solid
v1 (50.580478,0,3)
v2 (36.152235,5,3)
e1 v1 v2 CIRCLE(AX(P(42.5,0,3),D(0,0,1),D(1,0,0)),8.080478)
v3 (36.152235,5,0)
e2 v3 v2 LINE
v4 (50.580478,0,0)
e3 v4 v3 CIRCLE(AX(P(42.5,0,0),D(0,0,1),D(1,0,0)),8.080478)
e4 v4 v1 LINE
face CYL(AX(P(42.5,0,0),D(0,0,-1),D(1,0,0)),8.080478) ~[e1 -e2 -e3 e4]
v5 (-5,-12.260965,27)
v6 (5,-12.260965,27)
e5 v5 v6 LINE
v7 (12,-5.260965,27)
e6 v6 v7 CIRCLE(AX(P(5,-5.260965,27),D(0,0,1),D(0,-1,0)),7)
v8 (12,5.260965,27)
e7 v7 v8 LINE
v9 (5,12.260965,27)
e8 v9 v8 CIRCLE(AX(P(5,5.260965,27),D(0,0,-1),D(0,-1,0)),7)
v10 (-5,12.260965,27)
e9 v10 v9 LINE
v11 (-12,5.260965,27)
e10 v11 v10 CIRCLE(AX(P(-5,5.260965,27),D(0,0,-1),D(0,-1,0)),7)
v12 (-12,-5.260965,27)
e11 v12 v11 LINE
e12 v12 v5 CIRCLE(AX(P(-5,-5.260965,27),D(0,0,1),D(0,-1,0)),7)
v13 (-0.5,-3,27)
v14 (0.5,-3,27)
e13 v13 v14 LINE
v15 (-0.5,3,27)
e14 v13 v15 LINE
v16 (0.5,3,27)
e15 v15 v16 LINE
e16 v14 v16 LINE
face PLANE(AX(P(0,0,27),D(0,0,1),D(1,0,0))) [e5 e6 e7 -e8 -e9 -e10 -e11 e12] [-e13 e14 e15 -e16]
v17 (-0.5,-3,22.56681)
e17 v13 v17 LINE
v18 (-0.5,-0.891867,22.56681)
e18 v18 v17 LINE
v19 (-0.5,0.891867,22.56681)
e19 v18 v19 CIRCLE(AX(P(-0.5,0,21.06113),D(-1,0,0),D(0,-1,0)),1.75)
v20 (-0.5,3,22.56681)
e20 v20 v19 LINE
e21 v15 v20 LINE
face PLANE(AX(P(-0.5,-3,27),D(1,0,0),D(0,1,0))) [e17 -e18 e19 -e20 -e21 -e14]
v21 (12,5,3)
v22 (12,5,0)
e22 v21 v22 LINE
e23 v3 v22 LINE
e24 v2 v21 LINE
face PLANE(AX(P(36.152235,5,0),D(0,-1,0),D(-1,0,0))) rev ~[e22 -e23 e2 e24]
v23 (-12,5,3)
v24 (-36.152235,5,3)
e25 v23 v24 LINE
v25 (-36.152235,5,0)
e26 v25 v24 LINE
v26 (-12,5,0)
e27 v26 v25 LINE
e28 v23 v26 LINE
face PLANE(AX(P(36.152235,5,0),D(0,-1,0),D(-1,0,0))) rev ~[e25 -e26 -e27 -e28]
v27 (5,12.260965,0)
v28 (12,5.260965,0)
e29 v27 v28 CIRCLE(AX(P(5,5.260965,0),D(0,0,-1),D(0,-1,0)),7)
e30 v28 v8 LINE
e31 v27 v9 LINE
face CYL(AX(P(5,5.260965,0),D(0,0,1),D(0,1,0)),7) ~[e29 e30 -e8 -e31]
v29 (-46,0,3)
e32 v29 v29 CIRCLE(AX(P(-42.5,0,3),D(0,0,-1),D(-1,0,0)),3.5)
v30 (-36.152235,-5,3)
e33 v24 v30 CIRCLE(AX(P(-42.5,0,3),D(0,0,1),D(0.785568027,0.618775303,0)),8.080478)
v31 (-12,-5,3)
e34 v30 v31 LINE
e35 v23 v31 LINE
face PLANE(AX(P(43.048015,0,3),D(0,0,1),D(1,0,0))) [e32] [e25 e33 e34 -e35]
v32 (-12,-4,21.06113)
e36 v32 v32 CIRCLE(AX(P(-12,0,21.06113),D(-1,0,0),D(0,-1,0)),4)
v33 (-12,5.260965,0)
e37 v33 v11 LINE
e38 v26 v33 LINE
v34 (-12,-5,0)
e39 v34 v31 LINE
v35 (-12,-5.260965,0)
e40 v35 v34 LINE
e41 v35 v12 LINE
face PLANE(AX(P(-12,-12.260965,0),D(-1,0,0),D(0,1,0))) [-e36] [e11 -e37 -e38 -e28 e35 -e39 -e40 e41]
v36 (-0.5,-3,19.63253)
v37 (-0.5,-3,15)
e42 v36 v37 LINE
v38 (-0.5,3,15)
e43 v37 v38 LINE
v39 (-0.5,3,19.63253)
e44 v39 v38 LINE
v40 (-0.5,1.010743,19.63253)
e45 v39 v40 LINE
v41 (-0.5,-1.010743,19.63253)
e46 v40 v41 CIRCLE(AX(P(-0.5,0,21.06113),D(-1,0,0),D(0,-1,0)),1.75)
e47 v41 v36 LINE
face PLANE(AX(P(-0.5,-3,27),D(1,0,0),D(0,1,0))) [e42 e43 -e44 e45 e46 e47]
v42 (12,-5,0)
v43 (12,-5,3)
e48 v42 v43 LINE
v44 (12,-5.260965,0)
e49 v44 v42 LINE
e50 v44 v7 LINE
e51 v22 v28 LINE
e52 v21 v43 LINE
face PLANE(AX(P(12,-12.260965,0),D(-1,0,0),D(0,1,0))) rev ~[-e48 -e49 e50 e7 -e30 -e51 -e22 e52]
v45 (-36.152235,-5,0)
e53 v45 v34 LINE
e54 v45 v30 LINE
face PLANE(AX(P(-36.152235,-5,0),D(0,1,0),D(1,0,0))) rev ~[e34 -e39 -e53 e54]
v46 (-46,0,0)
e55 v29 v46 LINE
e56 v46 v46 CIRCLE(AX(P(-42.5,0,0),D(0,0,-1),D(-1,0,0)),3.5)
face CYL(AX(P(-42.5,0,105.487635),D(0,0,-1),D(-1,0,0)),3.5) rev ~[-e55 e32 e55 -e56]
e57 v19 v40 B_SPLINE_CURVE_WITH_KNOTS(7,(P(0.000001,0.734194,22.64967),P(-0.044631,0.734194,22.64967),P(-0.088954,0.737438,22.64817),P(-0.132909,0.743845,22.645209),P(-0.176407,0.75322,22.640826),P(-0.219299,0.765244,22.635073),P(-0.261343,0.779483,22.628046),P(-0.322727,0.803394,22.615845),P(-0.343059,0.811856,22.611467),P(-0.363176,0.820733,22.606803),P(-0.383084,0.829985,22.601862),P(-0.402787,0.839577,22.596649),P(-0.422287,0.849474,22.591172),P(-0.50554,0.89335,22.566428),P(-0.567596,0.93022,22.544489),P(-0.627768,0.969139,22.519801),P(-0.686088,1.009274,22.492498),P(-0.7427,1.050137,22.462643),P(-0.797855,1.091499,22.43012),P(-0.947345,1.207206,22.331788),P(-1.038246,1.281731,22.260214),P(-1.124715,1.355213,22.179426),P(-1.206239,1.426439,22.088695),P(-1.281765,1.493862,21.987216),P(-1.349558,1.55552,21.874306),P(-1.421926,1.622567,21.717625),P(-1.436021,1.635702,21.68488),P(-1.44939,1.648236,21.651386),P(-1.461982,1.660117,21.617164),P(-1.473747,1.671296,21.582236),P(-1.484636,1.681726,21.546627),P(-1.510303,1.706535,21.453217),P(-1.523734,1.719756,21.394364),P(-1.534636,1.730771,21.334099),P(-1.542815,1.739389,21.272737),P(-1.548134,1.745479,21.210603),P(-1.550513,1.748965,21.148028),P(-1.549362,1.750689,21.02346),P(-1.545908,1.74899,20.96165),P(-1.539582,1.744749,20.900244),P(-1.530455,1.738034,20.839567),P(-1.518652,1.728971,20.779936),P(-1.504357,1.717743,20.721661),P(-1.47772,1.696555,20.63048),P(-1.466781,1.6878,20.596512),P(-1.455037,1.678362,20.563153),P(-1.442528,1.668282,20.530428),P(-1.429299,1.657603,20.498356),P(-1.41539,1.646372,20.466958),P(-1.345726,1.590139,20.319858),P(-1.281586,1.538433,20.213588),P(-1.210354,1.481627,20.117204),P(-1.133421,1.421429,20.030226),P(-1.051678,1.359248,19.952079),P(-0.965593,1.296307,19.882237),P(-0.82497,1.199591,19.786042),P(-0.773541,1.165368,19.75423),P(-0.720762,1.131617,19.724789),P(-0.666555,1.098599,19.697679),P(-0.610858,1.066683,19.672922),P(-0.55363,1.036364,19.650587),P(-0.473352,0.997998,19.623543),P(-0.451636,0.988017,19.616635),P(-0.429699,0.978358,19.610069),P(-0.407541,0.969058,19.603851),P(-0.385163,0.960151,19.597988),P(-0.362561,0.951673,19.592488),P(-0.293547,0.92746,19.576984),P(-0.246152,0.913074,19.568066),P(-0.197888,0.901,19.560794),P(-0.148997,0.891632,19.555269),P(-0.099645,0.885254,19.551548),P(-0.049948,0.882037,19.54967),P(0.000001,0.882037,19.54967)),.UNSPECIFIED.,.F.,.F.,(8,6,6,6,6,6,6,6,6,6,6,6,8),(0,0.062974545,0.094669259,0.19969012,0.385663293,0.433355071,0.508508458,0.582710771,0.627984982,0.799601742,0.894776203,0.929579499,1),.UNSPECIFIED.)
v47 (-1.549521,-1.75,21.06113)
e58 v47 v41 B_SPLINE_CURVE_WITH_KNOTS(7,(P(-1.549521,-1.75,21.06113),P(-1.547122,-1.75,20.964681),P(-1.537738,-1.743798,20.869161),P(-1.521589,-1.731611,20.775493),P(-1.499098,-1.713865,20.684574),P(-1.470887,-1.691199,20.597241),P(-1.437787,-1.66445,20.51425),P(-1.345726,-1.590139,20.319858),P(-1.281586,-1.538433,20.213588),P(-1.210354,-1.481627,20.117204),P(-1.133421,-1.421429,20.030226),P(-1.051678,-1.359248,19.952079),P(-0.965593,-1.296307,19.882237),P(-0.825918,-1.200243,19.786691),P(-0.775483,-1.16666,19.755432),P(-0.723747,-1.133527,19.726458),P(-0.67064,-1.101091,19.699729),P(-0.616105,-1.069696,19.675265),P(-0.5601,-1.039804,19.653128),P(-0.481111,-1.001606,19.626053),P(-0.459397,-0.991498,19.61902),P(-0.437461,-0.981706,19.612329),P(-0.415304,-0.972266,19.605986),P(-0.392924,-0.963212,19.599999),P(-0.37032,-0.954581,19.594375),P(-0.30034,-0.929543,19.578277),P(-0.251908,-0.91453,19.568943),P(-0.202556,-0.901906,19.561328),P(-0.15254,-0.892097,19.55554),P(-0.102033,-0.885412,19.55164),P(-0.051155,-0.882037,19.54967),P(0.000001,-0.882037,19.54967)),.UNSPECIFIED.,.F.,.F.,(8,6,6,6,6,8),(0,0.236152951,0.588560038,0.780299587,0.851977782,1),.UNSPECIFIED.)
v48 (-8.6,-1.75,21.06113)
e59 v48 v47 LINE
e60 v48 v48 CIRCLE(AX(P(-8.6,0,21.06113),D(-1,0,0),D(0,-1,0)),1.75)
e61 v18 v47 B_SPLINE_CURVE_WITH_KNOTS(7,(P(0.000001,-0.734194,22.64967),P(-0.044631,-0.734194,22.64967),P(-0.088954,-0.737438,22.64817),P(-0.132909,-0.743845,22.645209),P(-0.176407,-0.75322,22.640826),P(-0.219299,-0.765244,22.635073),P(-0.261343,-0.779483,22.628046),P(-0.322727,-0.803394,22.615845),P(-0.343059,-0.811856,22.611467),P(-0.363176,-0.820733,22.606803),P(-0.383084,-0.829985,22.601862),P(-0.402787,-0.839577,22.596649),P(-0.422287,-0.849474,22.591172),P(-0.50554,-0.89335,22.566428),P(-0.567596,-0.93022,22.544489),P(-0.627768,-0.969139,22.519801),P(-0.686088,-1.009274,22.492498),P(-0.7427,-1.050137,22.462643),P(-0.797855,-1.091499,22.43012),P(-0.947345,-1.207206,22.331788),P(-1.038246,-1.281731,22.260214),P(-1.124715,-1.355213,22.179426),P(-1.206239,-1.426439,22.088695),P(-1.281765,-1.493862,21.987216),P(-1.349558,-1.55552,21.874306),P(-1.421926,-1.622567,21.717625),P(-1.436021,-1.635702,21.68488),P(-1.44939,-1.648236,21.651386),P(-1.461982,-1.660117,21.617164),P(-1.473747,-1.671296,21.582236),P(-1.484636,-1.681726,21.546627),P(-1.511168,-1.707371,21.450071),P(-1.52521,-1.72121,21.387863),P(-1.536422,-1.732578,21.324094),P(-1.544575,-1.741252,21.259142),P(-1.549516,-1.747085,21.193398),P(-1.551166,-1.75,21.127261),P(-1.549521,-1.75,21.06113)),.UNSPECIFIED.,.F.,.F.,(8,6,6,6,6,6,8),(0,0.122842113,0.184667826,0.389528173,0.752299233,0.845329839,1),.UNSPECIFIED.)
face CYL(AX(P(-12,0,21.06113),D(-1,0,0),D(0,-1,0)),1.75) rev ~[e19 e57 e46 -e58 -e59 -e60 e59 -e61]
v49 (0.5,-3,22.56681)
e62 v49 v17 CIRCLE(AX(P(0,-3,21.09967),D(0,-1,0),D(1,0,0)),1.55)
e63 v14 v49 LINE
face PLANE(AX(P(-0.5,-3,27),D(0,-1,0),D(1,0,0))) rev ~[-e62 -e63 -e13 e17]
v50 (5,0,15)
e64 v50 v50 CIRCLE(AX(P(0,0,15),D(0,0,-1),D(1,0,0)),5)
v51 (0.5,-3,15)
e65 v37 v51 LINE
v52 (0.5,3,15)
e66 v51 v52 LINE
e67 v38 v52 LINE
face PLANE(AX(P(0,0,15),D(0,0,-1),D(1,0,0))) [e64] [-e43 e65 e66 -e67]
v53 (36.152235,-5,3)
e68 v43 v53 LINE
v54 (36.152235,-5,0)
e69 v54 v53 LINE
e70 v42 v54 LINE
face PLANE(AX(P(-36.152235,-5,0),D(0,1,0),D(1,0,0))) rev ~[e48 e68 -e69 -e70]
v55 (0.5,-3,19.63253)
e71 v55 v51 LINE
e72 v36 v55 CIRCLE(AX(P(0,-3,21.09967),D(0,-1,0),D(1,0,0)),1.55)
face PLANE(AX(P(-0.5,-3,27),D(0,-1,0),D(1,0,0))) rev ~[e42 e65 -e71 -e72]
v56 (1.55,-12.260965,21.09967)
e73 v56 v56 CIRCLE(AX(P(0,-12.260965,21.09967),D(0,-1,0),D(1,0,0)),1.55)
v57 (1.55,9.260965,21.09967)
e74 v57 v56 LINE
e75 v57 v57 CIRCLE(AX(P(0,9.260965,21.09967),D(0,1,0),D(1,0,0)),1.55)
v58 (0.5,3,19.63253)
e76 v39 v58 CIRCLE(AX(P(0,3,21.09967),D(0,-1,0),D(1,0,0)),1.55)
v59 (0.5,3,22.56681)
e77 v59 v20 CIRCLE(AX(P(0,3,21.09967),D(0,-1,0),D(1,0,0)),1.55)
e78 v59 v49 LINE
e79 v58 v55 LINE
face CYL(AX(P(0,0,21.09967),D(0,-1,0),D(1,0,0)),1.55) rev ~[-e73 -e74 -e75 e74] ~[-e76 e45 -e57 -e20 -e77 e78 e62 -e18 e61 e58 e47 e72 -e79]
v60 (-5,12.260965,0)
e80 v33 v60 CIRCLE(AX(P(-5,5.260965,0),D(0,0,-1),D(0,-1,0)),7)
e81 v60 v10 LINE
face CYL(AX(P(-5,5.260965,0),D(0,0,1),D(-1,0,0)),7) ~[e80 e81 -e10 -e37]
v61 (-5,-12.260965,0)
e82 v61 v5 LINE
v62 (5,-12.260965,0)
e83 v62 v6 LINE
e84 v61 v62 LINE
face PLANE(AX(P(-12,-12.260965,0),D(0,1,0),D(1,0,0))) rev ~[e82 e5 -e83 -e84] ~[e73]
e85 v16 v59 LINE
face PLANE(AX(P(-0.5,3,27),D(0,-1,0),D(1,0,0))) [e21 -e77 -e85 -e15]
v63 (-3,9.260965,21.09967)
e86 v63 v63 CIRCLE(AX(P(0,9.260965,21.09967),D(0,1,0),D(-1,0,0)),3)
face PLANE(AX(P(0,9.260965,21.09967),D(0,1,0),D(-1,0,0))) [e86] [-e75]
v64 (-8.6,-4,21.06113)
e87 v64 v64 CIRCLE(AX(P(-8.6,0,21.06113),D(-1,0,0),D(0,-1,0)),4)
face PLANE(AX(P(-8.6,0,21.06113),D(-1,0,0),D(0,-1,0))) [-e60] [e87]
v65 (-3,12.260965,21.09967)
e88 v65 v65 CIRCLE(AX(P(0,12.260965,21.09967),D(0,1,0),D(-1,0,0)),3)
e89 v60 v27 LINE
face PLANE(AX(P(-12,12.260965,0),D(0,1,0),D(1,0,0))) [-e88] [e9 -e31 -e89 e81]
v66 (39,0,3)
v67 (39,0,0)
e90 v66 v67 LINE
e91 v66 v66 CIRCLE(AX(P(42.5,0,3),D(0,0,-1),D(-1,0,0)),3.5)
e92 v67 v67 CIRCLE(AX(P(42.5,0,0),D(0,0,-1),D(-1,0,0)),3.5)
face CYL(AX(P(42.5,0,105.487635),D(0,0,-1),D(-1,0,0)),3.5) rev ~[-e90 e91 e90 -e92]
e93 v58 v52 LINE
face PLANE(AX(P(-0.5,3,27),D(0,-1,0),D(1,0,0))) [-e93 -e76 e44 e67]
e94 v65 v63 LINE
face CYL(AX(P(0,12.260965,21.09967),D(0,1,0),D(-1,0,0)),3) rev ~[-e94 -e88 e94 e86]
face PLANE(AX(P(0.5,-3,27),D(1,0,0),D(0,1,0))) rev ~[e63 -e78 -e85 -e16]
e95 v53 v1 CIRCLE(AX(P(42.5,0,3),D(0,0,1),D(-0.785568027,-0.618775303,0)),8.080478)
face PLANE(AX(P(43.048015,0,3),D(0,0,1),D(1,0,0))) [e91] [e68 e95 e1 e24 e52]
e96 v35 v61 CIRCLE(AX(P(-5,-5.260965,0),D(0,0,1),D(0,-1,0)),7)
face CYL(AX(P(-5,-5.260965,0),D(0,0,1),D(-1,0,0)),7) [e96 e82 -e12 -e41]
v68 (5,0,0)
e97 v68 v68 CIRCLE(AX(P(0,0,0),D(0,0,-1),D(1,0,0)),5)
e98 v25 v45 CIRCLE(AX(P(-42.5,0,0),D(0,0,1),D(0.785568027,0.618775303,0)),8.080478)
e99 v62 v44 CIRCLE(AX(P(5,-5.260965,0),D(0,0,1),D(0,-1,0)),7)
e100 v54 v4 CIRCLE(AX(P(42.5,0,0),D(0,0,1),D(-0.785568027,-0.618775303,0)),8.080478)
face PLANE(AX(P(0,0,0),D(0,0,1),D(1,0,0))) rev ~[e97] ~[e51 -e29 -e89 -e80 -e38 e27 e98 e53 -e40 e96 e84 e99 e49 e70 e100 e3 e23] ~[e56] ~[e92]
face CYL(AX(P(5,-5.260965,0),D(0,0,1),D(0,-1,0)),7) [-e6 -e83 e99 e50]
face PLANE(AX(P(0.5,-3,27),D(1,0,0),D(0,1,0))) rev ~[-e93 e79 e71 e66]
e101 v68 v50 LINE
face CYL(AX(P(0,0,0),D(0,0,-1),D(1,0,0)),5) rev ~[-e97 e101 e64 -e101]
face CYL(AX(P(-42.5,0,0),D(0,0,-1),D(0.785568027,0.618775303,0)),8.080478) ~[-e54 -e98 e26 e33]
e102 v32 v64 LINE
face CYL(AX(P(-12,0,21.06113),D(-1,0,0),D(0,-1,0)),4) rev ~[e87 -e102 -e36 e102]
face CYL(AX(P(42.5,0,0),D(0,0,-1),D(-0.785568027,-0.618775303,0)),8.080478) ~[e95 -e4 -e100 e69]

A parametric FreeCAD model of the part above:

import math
import FreeCAD as App
import Part
import Sketcher

V = App.Vector


def edges_at(feature, points):
    """Names of the edges that pass closest to the given points."""
    edges = feature.Shape.Edges
    near = lambda p: min(range(len(edges)), key=lambda i: edges[i].distToShape(Part.Vertex(*p))[0])
    return sorted({f"Edge{near(p) + 1}" for p in points})


def add_polygon(sketch, points):
    """Adds a closed chain of lines whose ends are joined by coincident constraints."""
    first, n = sketch.GeometryCount, len(points)
    for a, b in zip(points, points[1:] + points[:1]):
        sketch.addGeometry(Part.LineSegment(App.Vector(*a, 0), App.Vector(*b, 0)), False)
    for i in range(n):
        sketch.addConstraint(Sketcher.Constraint("Coincident", first + i, 2, first + (i + 1) % n, 1))

doc = App.newDocument("Part")
body = doc.addObject("PartDesign::Body", "Body")

# Sketch on XY plane
sketch1 = body.newObject("Sketcher::SketchObject", "Sketch")
sketch1.AttachmentSupport = (doc.getObject("XY_Plane"), [""])
sketch1.MapMode = "FlatFace"
sketch1.addGeometry([
    Part.ArcOfCircle(Part.Circle(V(42.5, 0, 0), V(0, 0, 1), 8.080478), math.radians(-141.773244), math.radians(0)),  # 0
    Part.ArcOfCircle(Part.Circle(V(42.5, 0, 0), V(0, 0, 1), 8.080478), math.radians(0), math.radians(141.773244)),  # 1
    Part.LineSegment(V(36.152235, 5, 0), V(-36.152235, 5, 0)),  # 2
    Part.ArcOfCircle(Part.Circle(V(-42.5, 0, 0), V(0, 0, 1), 8.080478), math.radians(38.226756), math.radians(321.773244)),  # 3
    Part.LineSegment(V(-36.152235, -5, 0), V(36.152235, -5, 0)),  # 4
], False)
sketch1.addConstraint([
    Sketcher.Constraint("Tangent", 0, 2, 1, 1),
    Sketcher.Constraint("Coincident", 1, 2, 2, 1),
    Sketcher.Constraint("Coincident", 2, 2, 3, 1),
    Sketcher.Constraint("Coincident", 3, 2, 4, 1),
    Sketcher.Constraint("Coincident", 4, 2, 0, 1),
    Sketcher.Constraint("Horizontal", 2),
    Sketcher.Constraint("Horizontal", 4),
    Sketcher.Constraint("Equal", 0, 1),
    Sketcher.Constraint("Equal", 1, 3),
    Sketcher.Constraint("Symmetric", 0, 3, 3, 3, -1, 1),
    Sketcher.Constraint("Symmetric", 2, 2, 3, 2, -1),
    Sketcher.Constraint("PointOnObject", 0, 2, -1),
    Sketcher.Constraint("DistanceY", -1, 1, 1, 2, 5.0),
    Sketcher.Constraint("DistanceX", 3, 3, 0, 3, 85.0),
    Sketcher.Constraint("Radius", 0, 8.080478),
])
pad1 = body.newObject("PartDesign::Pad", "Pad")
pad1.Profile = sketch1
pad1.Length = 3

# Sketch on XY plane
sketch2 = body.newObject("Sketcher::SketchObject", "Sketch001")
sketch2.AttachmentSupport = (doc.getObject("XY_Plane"), [""])
sketch2.MapMode = "FlatFace"
sketch2.AttachmentOffset = App.Placement(V(0, 0, 3), App.Rotation())
sketch2.addGeometry([
    Part.Circle(V(-42.5, 0, 0), V(0, 0, 1), 3.5),
    Part.Circle(V(42.5, 0, 0), V(0, 0, 1), 3.5),
], False)
sketch2.addConstraint([
    Sketcher.Constraint("Equal", 0, 1),
    Sketcher.Constraint("Symmetric", 0, 3, 1, 3, -1, 1),
    Sketcher.Constraint("PointOnObject", 0, 3, -1),
    Sketcher.Constraint("Diameter", 0, 7.0),
    Sketcher.Constraint("DistanceX", 0, 3, 1, 3, 85.0),
])
doc.recompute()
hole = body.newObject("PartDesign::Hole", "Hole")
hole.Profile = sketch2
hole.ThreadType = "None"
hole.Diameter = 7
hole.DepthType = "ThroughAll"

# Sketch on XY plane
sketch3 = body.newObject("Sketcher::SketchObject", "Sketch002")
sketch3.AttachmentSupport = (doc.getObject("XY_Plane"), [""])
sketch3.MapMode = "FlatFace"
add_polygon(sketch3, [(-12, 12.260965), (-12, -12.260965), (12, -12.260965), (12, 12.260965)])  # lines 0-3
sketch3.addConstraint([
    Sketcher.Constraint("Vertical", 0),
    Sketcher.Constraint("Horizontal", 1),
    Sketcher.Constraint("Vertical", 2),
    Sketcher.Constraint("Horizontal", 3),
    Sketcher.Constraint("Symmetric", 0, 2, 2, 2, -1, 1),
    Sketcher.Constraint("DistanceX", 1, 1, 1, 2, 24.0),
    Sketcher.Constraint("DistanceY", 0, 2, 0, 1, 24.521929),
])
pad2 = body.newObject("PartDesign::Pad", "Pad001")
pad2.Profile = sketch3
pad2.Length = 27

# Sketch on XZ plane
sketch4 = body.newObject("Sketcher::SketchObject", "Sketch003")
sketch4.AttachmentSupport = (doc.getObject("XZ_Plane"), [""])
sketch4.MapMode = "FlatFace"
sketch4.addGeometry(Part.Circle(V(0, 21.09967, 0), V(0, 0, 1), 1.55), False)
sketch4.addConstraint([
    Sketcher.Constraint("PointOnObject", 0, 3, -2),
    Sketcher.Constraint("Diameter", 0, 3.1),
    Sketcher.Constraint("DistanceY", -1, 1, 0, 3, 21.09967),
])
pocket1 = body.newObject("PartDesign::Pocket", "Pocket")
pocket1.Profile = sketch4
pocket1.Length = 25
pocket1.Midplane = True

# Sketch on YZ plane
sketch5 = body.newObject("Sketcher::SketchObject", "Sketch004")
sketch5.AttachmentSupport = (doc.getObject("YZ_Plane"), [""])
sketch5.MapMode = "FlatFace"
sketch5.AttachmentOffset = App.Placement(V(0, 0, -12), App.Rotation())
sketch5.addGeometry(Part.Circle(V(0, 21.06113, 0), V(0, 0, 1), 1.75), False)
sketch5.addConstraint([
    Sketcher.Constraint("PointOnObject", 0, 3, -2),
    Sketcher.Constraint("Diameter", 0, 3.5),
    Sketcher.Constraint("DistanceY", -1, 1, 0, 3, 21.06113),
])
pocket2 = body.newObject("PartDesign::Pocket", "Pocket001")
pocket2.Profile = sketch5
pocket2.Length = 12
pocket2.Reversed = True

# Sketch on YZ plane
sketch6 = body.newObject("Sketcher::SketchObject", "Sketch005")
sketch6.AttachmentSupport = (doc.getObject("YZ_Plane"), [""])
sketch6.MapMode = "FlatFace"
sketch6.AttachmentOffset = App.Placement(V(0, 0, -12), App.Rotation())
sketch6.addGeometry(Part.Circle(V(0, 21.06113, 0), V(0, 0, 1), 4), False)
sketch6.addConstraint([
    Sketcher.Constraint("PointOnObject", 0, 3, -2),
    Sketcher.Constraint("Diameter", 0, 8.0),
    Sketcher.Constraint("DistanceY", -1, 1, 0, 3, 21.06113),
])
pocket3 = body.newObject("PartDesign::Pocket", "Pocket002")
pocket3.Profile = sketch6
pocket3.Length = 3.4
pocket3.Reversed = True
doc.recompute()

fillet = body.newObject("PartDesign::Fillet", "Fillet")
fillet.Base = (pocket3, edges_at(pocket3, [(-12, 12.261, 13.5)]))
fillet.Radius = 7
doc.recompute()

fillet2 = body.newObject("PartDesign::Fillet", "Fillet001")
fillet2.Base = (fillet, edges_at(fillet, [(12, 12.261, 13.5)]))
fillet2.Radius = 7
doc.recompute()

fillet3 = body.newObject("PartDesign::Fillet", "Fillet002")
fillet3.Base = (fillet2, edges_at(fillet2, [(-12, -12.261, 13.5)]))
fillet3.Radius = 7
doc.recompute()

fillet4 = body.newObject("PartDesign::Fillet", "Fillet003")
fillet4.Base = (fillet3, edges_at(fillet3, [(12, -12.261, 13.5)]))
fillet4.Radius = 7

# Sketch on XY plane
sketch7 = body.newObject("Sketcher::SketchObject", "Sketch006")
sketch7.AttachmentSupport = (doc.getObject("XY_Plane"), [""])
sketch7.MapMode = "FlatFace"
sketch7.AttachmentOffset = App.Placement(V(0, 0, 27), App.Rotation())
add_polygon(sketch7, [(-0.5, 3), (-0.5, -3), (0.5, -3), (0.5, 3)])  # lines 0-3
sketch7.addConstraint([
    Sketcher.Constraint("Vertical", 0),
    Sketcher.Constraint("Horizontal", 1),
    Sketcher.Constraint("Vertical", 2),
    Sketcher.Constraint("Horizontal", 3),
    Sketcher.Constraint("Symmetric", 0, 2, 2, 2, -1, 1),
    Sketcher.Constraint("DistanceX", 1, 1, 1, 2, 1.0),
    Sketcher.Constraint("DistanceY", 0, 2, 0, 1, 6.0),
])
pocket4 = body.newObject("PartDesign::Pocket", "Pocket003")
pocket4.Profile = sketch7
pocket4.Length = 14

# Sketch on XY plane
sketch8 = body.newObject("Sketcher::SketchObject", "Sketch007")
sketch8.AttachmentSupport = (doc.getObject("XY_Plane"), [""])
sketch8.MapMode = "FlatFace"
sketch8.addGeometry(Part.Circle(V(0, 0, 0), V(0, 0, 1), 5), False)
sketch8.addConstraint([
    Sketcher.Constraint("Coincident", 0, 3, -1, 1),
    Sketcher.Constraint("Diameter", 0, 10.0),
])
pocket5 = body.newObject("PartDesign::Pocket", "Pocket004")
pocket5.Profile = sketch8
pocket5.Length = 15
pocket5.Reversed = True

# Sketch on XZ plane
sketch9 = body.newObject("Sketcher::SketchObject", "Sketch008")
sketch9.AttachmentSupport = (doc.getObject("XZ_Plane"), [""])
sketch9.MapMode = "FlatFace"
sketch9.AttachmentOffset = App.Placement(V(0, 0, -12.260965), App.Rotation())
sketch9.addGeometry([
    Part.Circle(V(0, 21.09967, 0), V(0, 0, 1), 3),
    Part.Circle(V(0, 21.09967, 0), V(0, 0, 1), 1.55),
], False)
sketch9.addConstraint([
    Sketcher.Constraint("Coincident", 1, 3, 0, 3),
    Sketcher.Constraint("PointOnObject", 0, 3, -2),
    Sketcher.Constraint("Diameter", 0, 6.0),
    Sketcher.Constraint("Diameter", 1, 3.1),
    Sketcher.Constraint("DistanceY", -1, 1, 0, 3, 21.09967),
])
pocket6 = body.newObject("PartDesign::Pocket", "Pocket005")
pocket6.Profile = sketch9
pocket6.Length = 3
pocket6.Reversed = True

doc.recompute()
